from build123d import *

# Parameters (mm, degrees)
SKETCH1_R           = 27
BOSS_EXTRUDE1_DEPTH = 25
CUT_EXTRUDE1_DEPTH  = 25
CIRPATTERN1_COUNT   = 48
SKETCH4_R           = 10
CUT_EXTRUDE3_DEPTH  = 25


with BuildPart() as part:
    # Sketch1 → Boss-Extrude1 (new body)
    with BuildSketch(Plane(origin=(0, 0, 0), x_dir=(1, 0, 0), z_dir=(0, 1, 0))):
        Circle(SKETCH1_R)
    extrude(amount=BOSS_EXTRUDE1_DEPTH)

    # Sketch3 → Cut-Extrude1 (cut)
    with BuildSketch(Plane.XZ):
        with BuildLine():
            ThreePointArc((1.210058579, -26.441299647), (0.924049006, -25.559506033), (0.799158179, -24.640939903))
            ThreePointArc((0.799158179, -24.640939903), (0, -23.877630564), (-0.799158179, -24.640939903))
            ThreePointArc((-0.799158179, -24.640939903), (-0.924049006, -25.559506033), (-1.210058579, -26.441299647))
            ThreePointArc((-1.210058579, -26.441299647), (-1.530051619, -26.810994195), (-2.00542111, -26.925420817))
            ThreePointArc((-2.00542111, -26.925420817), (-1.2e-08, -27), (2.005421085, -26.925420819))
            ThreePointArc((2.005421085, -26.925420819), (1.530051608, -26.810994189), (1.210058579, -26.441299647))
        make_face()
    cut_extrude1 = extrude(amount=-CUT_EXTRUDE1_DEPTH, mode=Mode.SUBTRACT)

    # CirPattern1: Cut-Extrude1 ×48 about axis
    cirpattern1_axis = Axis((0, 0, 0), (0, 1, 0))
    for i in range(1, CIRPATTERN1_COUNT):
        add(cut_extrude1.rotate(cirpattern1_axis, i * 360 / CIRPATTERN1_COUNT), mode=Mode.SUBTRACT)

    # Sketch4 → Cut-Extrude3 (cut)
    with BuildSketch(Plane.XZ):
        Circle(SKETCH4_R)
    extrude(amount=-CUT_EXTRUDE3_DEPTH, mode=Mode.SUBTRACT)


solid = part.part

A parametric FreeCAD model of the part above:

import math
import FreeCAD as App
import Part
import Sketcher

V = App.Vector

doc = App.newDocument("Part")
body = doc.addObject("PartDesign::Body", "Body")

sketch1 = body.newObject("Sketcher::SketchObject", "Sketch")
sketch1.AttachmentSupport = (doc.getObject("XZ_Plane"), [""])
sketch1.MapMode = "FlatFace"
sketch1.addGeometry(Part.Circle(V(0, 0, 0), V(0, 0, 1), 27), False)
sketch1.addConstraint([
    Sketcher.Constraint("Coincident", 0, 3, -1, 1),
    Sketcher.Constraint("Diameter", 0, 54.0),
])
pad1 = body.newObject("PartDesign::Pad", "Pad")
pad1.Profile = sketch1
pad1.Length = 25
pad1.Reversed = True

sketch2 = body.newObject("Sketcher::SketchObject", "Sketch001")
sketch2.AttachmentSupport = (doc.getObject("XZ_Plane"), [""])
sketch2.MapMode = "FlatFace"
sketch2.addGeometry([
    Part.ArcOfCircle(Part.Circle(V(6, -24.4, 0), V(0, 0, 1), 5.2), math.radians(-177), math.radians(-157)),
    Part.ArcOfCircle(Part.Circle(V(0, -24.7, 0), V(0, 0, 1), 0.8), math.radians(3), math.radians(177)),
    Part.ArcOfCircle(Part.Circle(V(-6, -24.4, 0), V(0, 0, 1), 5.2), math.radians(-23), math.radians(-3)),
    Part.ArcOfCircle(Part.Circle(V(-1.9, -26.1, 0), V(0, 0, 1), 0.8), math.radians(-94), math.radians(-23)),
    Part.ArcOfCircle(Part.Circle(V(0, 0, 0), V(0, 0, 1), 27), math.radians(-94.26), math.radians(-85.74)),
    Part.ArcOfCircle(Part.Circle(V(1.9, -26.1, 0), V(0, 0, 1), 0.8), math.radians(-157), math.radians(-86)),
], False)
sketch2.addConstraint([
    Sketcher.Constraint("Tangent", 0, 1, 1, 1),
    Sketcher.Constraint("Tangent", 1, 2, 2, 2),
    Sketcher.Constraint("Tangent", 2, 1, 3, 2),
    Sketcher.Constraint("Tangent", 3, 1, 4, 1),
    Sketcher.Constraint("Tangent", 4, 2, 5, 2),
    Sketcher.Constraint("Tangent", 5, 1, 0, 2),
    Sketcher.Constraint("Coincident", 4, 3, -1, 1),
    Sketcher.Constraint("Equal", 0, 2),
    Sketcher.Constraint("Equal", 1, 3),
    Sketcher.Constraint("Equal", 3, 5),
    Sketcher.Constraint("Symmetric", 0, 3, 2, 3, -2),
    Sketcher.Constraint("Radius", 4, 27.0),
    Sketcher.Constraint("Radius", 0, 5.2),
    Sketcher.Constraint("Radius", 1, 0.8),
    Sketcher.Constraint("DistanceY", 3, 3, 1, 3, 1.45),
    Sketcher.Constraint("DistanceX", 3, 3, -1, 1, 1.946001),
])
pocket1 = body.newObject("PartDesign::Pocket", "Pocket")
pocket1.Profile = sketch2
pocket1.Length = 25
doc.recompute()

polarpattern = body.newObject("PartDesign::PolarPattern", "PolarPattern")
polarpattern.Originals = [pocket1]
polarpattern.Axis = (doc.getObject("Y_Axis"), [""])
polarpattern.Angle = 360
polarpattern.Occurrences = 48
body.Tip = polarpattern

sketch3 = body.newObject("Sketcher::SketchObject", "Sketch002")
sketch3.AttachmentSupport = (doc.getObject("XZ_Plane"), [""])
sketch3.MapMode = "FlatFace"
sketch3.addGeometry(Part.Circle(V(0, 0, 0), V(0, 0, 1), 10), False)
sketch3.addConstraint([
    Sketcher.Constraint("Coincident", 0, 3, -1, 1),
    Sketcher.Constraint("Diameter", 0, 20.0),
])
pocket2 = body.newObject("PartDesign::Pocket", "Pocket001")
pocket2.Profile = sketch3
pocket2.Length = 25

doc.recompute()
